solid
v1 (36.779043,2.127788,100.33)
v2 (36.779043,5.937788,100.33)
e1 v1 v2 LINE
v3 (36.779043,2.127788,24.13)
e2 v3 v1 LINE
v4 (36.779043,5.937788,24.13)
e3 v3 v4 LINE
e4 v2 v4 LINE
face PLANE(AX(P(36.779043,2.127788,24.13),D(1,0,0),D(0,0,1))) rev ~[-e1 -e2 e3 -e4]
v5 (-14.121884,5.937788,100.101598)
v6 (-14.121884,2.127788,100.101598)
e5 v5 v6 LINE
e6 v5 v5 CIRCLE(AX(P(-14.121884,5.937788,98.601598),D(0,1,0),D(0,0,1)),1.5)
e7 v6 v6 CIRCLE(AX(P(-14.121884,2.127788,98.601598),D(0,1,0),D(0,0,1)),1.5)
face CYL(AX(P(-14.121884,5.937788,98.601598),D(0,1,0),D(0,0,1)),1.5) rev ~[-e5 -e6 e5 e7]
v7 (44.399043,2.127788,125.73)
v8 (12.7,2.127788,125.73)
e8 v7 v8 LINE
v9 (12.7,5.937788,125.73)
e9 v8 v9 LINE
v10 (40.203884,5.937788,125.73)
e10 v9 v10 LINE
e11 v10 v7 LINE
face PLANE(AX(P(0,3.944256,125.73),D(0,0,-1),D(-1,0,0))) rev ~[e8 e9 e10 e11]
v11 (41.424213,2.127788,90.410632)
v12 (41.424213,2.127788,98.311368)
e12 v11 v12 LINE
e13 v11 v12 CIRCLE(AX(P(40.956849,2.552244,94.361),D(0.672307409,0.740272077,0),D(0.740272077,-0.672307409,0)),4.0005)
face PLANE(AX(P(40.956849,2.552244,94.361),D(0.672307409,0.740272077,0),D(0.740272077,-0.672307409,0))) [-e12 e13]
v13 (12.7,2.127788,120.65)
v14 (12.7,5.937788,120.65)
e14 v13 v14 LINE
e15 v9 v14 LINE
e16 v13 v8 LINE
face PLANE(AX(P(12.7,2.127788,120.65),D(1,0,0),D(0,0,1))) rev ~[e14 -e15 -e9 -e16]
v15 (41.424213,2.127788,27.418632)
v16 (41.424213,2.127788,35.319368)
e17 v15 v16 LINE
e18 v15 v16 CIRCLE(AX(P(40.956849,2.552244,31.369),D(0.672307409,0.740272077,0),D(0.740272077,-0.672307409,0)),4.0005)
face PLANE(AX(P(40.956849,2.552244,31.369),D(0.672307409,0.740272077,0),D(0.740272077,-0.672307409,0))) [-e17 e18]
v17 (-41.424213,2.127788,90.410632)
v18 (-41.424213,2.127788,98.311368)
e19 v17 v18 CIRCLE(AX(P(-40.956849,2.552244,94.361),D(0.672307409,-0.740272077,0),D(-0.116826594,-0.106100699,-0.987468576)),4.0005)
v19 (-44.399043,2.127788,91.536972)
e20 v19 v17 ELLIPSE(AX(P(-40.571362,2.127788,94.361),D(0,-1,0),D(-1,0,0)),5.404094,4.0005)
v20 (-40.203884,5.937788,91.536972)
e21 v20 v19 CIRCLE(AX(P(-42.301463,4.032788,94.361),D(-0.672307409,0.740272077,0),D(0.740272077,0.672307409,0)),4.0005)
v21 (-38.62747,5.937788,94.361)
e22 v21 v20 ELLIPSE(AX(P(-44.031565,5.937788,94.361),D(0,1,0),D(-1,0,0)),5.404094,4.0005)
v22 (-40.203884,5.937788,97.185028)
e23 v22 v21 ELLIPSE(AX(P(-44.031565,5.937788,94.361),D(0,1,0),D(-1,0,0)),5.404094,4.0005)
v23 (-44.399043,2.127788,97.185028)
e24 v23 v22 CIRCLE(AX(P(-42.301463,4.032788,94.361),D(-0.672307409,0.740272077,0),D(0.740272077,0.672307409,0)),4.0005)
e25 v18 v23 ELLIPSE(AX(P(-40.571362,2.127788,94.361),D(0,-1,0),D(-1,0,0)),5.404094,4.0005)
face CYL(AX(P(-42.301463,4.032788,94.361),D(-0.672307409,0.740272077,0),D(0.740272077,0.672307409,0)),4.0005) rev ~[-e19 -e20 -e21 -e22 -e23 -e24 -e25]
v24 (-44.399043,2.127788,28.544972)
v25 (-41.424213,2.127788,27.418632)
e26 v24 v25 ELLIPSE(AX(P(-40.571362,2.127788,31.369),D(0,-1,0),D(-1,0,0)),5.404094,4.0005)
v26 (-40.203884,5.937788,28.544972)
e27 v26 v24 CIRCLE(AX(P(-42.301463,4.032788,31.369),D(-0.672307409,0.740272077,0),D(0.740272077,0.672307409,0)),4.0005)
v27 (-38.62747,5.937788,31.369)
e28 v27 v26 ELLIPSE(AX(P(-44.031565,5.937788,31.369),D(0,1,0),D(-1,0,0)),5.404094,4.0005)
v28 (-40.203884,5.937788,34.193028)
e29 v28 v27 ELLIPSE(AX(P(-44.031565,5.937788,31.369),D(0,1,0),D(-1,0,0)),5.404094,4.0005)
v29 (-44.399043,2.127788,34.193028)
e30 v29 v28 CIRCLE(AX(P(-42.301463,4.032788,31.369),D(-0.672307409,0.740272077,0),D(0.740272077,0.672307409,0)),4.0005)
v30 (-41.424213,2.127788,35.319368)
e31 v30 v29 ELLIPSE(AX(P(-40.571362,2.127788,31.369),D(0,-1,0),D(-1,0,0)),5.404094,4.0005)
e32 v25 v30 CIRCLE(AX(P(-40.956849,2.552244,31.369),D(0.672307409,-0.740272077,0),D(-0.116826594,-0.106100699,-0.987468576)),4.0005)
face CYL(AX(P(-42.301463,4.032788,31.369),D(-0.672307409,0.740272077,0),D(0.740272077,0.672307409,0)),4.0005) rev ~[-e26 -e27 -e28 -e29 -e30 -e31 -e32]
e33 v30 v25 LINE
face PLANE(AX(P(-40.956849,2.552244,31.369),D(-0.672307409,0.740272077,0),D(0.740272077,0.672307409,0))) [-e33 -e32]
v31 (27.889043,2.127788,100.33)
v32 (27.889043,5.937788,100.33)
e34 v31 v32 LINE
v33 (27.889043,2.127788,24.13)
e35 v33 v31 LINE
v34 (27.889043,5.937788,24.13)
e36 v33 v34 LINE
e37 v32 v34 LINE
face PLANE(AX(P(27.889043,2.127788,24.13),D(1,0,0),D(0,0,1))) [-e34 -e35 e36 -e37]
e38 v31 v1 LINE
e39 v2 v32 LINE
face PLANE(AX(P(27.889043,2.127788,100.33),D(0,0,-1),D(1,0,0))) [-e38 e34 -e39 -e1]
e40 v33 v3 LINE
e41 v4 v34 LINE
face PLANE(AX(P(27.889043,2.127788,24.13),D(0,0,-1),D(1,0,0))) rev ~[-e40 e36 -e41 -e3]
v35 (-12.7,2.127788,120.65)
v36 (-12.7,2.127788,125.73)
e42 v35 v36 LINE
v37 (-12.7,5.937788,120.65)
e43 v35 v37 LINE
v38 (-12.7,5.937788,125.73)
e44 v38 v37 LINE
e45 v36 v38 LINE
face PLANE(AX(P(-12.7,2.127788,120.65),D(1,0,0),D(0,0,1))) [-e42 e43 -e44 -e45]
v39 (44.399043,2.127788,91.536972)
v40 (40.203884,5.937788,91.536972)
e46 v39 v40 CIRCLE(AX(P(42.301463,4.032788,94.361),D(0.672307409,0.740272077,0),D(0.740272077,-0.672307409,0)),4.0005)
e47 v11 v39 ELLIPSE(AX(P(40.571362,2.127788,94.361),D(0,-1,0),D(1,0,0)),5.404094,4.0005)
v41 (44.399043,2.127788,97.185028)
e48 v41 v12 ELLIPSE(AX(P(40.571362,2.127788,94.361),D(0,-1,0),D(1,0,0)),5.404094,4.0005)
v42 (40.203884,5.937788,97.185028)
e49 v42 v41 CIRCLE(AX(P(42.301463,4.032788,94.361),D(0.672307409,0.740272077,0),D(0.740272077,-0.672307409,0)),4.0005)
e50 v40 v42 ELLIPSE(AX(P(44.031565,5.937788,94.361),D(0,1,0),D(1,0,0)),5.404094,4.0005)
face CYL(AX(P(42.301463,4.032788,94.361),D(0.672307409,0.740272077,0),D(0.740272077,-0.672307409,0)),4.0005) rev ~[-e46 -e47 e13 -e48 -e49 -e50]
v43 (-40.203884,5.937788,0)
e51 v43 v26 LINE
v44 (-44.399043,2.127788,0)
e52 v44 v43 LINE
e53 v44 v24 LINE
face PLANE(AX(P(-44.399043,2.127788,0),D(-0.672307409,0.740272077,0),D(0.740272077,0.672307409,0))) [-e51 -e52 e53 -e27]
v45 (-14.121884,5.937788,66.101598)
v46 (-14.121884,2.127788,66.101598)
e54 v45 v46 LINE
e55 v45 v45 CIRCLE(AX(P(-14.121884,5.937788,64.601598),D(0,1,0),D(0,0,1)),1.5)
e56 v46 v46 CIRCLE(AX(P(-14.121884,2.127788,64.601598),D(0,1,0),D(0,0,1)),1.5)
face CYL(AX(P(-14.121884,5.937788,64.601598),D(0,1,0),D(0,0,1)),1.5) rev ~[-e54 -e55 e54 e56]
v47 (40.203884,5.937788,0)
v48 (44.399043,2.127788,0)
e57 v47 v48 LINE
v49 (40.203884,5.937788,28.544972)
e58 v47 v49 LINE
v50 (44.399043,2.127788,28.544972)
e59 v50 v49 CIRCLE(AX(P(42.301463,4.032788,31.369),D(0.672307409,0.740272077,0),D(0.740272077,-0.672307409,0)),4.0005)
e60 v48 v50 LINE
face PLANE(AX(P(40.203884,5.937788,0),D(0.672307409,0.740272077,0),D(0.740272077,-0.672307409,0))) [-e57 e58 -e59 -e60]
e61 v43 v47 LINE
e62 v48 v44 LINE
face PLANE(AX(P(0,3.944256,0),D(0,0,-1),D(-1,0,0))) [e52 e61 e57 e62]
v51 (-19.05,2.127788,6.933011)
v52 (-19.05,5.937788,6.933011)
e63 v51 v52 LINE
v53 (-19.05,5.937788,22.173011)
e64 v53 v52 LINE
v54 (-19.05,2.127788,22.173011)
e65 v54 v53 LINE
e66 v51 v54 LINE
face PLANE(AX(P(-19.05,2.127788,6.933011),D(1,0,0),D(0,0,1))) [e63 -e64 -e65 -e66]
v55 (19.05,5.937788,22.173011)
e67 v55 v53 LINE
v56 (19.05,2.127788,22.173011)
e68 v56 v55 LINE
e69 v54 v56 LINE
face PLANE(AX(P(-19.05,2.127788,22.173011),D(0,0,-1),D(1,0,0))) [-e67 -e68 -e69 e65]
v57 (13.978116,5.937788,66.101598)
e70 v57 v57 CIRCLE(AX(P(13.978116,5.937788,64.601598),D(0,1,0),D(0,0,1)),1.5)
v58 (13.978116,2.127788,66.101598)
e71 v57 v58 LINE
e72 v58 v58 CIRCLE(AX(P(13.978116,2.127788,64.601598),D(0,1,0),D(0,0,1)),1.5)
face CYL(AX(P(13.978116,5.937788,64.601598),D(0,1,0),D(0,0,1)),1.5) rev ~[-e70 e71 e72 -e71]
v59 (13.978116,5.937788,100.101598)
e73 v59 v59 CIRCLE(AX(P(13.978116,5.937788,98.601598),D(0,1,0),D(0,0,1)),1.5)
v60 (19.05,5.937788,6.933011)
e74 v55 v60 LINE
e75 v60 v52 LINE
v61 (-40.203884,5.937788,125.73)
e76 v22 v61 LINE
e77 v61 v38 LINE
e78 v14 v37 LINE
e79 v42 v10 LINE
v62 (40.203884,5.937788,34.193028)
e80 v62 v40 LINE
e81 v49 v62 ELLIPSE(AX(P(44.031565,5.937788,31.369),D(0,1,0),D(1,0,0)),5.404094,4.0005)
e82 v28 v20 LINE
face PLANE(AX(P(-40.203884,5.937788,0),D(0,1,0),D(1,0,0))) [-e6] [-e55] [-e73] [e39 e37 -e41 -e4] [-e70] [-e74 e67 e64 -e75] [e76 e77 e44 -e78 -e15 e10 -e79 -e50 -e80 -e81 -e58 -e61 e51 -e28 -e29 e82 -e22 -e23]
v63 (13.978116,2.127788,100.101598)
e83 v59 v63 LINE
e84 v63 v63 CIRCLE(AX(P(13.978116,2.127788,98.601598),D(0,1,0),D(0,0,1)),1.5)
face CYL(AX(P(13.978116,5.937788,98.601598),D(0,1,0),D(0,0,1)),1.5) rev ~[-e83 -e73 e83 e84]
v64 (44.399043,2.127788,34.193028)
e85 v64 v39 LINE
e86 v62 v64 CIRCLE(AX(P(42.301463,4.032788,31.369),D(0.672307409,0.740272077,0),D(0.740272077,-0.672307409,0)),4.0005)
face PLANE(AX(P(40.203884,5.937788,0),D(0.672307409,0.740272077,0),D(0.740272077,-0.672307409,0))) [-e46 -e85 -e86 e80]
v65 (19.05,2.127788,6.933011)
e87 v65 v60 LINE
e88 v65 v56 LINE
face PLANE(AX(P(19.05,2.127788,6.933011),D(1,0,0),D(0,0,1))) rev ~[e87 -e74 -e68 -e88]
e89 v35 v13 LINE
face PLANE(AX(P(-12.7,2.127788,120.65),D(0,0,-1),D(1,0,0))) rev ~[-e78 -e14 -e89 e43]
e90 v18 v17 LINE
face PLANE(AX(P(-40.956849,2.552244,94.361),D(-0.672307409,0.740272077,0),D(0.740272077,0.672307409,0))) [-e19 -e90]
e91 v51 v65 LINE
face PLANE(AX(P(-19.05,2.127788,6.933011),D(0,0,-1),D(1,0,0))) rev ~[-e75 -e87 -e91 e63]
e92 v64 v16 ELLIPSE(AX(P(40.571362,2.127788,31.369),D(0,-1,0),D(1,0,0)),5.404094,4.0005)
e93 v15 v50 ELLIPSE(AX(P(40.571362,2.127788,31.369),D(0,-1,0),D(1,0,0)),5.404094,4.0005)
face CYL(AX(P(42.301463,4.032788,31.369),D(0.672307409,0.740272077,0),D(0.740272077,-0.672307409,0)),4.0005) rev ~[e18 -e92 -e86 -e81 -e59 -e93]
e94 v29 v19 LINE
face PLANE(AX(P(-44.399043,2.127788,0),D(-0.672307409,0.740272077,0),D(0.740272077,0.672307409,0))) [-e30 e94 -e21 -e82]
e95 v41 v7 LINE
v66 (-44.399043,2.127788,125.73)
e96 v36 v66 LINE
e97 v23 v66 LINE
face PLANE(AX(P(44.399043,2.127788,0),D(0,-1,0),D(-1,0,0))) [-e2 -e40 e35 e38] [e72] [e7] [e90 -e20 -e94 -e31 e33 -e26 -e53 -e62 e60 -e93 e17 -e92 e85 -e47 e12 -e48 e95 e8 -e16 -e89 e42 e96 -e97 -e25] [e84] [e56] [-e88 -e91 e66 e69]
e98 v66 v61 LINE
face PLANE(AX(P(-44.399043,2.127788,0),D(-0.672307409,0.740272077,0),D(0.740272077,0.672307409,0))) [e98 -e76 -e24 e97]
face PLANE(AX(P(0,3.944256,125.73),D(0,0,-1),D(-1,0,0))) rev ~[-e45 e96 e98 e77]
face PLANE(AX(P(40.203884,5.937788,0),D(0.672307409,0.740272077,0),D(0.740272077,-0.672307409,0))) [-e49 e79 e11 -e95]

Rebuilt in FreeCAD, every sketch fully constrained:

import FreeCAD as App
import Part
import Sketcher
Q = App.Units.Quantity


def add_polygon(sketch, points):
    """Adds a closed chain of lines whose ends are joined by coincident constraints."""
    first, n = sketch.GeometryCount, len(points)
    for a, b in zip(points, points[1:] + points[:1]):
        sketch.addGeometry(Part.LineSegment(App.Vector(*a, 0), App.Vector(*b, 0)), False)
    for i in range(n):
        sketch.addConstraint(Sketcher.Constraint("Coincident", first + i, 2, first + (i + 1) % n, 1))

doc = App.newDocument("Part")
body = doc.addObject("PartDesign::Body", "Body")

# Sketch on XY plane
sketch1 = body.newObject("Sketcher::SketchObject", "Sketch")
sketch1.AttachmentSupport = (doc.getObject("XY_Plane"), [""])
sketch1.MapMode = "FlatFace"
add_polygon(sketch1, [(40, 6), (-40, 6), (-44, 2), (44, 2)])  # lines 0-3
sketch1.addConstraint(Sketcher.Constraint("Horizontal", 0))
sketch1.addConstraint(Sketcher.Constraint("Horizontal", 2))
sketch1.addConstraint(Sketcher.Constraint("Equal", 1, 3))
sketch1.addConstraint(Sketcher.Constraint("DistanceY", 1, 2, 0, 2, Q("0.15 in")))
sketch1.addConstraint(Sketcher.Constraint("Distance", 1, 5.66705))
sketch1.addConstraint(Sketcher.Constraint("DistanceX", 0, 2, 0, 1, 80.407768))
sketch1.addConstraint(Sketcher.Constraint("DistanceY", -1, 1, 0, 2, 5.937788))
sketch1.addConstraint(Sketcher.Constraint("DistanceX", 0, 2, -1, 1, 40.203884))
pad1 = body.newObject("PartDesign::Pad", "Pad")
pad1.Profile = sketch1
pad1.Length = Q("4.95 in")

# Sketch on XZ plane
sketch2 = body.newObject("Sketcher::SketchObject", "Sketch001")
sketch2.AttachmentSupport = (doc.getObject("XZ_Plane"), [""])
sketch2.MapMode = "FlatFace"
sketch2.AttachmentOffset = App.Placement(App.Vector(0, 0, -2.127788), App.Rotation())
add_polygon(sketch2, [(-13, 126), (-13, 121), (13, 121), (13, 126)])  # lines 0-3
sketch2.addConstraint(Sketcher.Constraint("Vertical", 0))
sketch2.addConstraint(Sketcher.Constraint("Horizontal", 1))
sketch2.addConstraint(Sketcher.Constraint("Vertical", 2))
sketch2.addConstraint(Sketcher.Constraint("Horizontal", 3))
sketch2.addConstraint(Sketcher.Constraint("DistanceX", 1, 1, 1, 2, Q("1 in")))
sketch2.addConstraint(Sketcher.Constraint("DistanceY", 0, 2, 0, 1, Q("0.2 in")))
sketch2.addConstraint(Sketcher.Constraint("DistanceX", 0, 2, -1, 1, Q("0.5 in")))
sketch2.addConstraint(Sketcher.Constraint("DistanceY", -1, 1, 0, 2, Q("4.75 in")))
pocket1 = body.newObject("PartDesign::Pocket", "Pocket")
pocket1.Profile = sketch2
pocket1.Type = "ThroughAll"

# Sketch on XZ plane
sketch3 = body.newObject("Sketcher::SketchObject", "Sketch002")
sketch3.AttachmentSupport = (doc.getObject("XZ_Plane"), [""])
sketch3.MapMode = "FlatFace"
sketch3.AttachmentOffset = App.Placement(App.Vector(0, 0, -2.127788), App.Rotation())
add_polygon(sketch3, [(28, 100), (28, 24), (37, 24), (37, 100)])  # lines 0-3
sketch3.addConstraint(Sketcher.Constraint("Vertical", 0))
sketch3.addConstraint(Sketcher.Constraint("Horizontal", 1))
sketch3.addConstraint(Sketcher.Constraint("Vertical", 2))
sketch3.addConstraint(Sketcher.Constraint("Horizontal", 3))
sketch3.addConstraint(Sketcher.Constraint("DistanceY", 0, 2, 0, 1, Q("3 in")))
sketch3.addConstraint(Sketcher.Constraint("DistanceX", 1, 1, 1, 2, Q("0.35 in")))
sketch3.addConstraint(Sketcher.Constraint("DistanceY", -1, 1, 0, 2, Q("0.95 in")))
sketch3.addConstraint(Sketcher.Constraint("DistanceX", -1, 1, 0, 2, 27.889043))
pocket2 = body.newObject("PartDesign::Pocket", "Pocket001")
pocket2.Profile = sketch3
pocket2.Type = "ThroughAll"

# Sketch on XZ plane
sketch4 = body.newObject("Sketcher::SketchObject", "Sketch003")
sketch4.AttachmentSupport = (doc.getObject("XZ_Plane"), [""])
sketch4.MapMode = "FlatFace"
sketch4.AttachmentOffset = App.Placement(App.Vector(0, 0, -2.127788), App.Rotation())
add_polygon(sketch4, [(-19, 22), (-19, 7), (19, 7), (19, 22)])  # lines 0-3
sketch4.addConstraint(Sketcher.Constraint("Vertical", 0))
sketch4.addConstraint(Sketcher.Constraint("Horizontal", 1))
sketch4.addConstraint(Sketcher.Constraint("Vertical", 2))
sketch4.addConstraint(Sketcher.Constraint("Horizontal", 3))
sketch4.addConstraint(Sketcher.Constraint("DistanceX", 1, 1, 1, 2, Q("1.5 in")))
sketch4.addConstraint(Sketcher.Constraint("DistanceY", 0, 2, 0, 1, Q("0.6 in")))
sketch4.addConstraint(Sketcher.Constraint("DistanceX", 0, 2, -1, 1, Q("0.75 in")))
sketch4.addConstraint(Sketcher.Constraint("DistanceY", -1, 1, 0, 2, 6.933011))
pocket3 = body.newObject("PartDesign::Pocket", "Pocket002")
pocket3.Profile = sketch4
pocket3.Type = "ThroughAll"

# Sketch on an angled plane
sketch5 = body.newObject("Sketcher::SketchObject", "Sketch004")
sketch5.Placement = App.Placement(App.Vector(21.127225, 23.263011, 0), App.Rotation(App.Vector(0.740272077, -0.672307409, 0), App.Vector(0, 0, -1), App.Vector(0.672307409, 0.740272077, 0), "ZXY"))
sketch5.addGeometry(Part.Circle(App.Vector(28.6, -94.4, 0), App.Vector(0, 0, 1), 4), False)
sketch5.addGeometry(Part.Circle(App.Vector(28.6, -31.4, 0), App.Vector(0, 0, 1), 4), False)
sketch5.addConstraint(Sketcher.Constraint("Equal", 0, 1))
sketch5.addConstraint(Sketcher.Constraint("Vertical", 0, 3, 1, 3))
sketch5.addConstraint(Sketcher.Constraint("Diameter", 0, Q("0.315 in")))
sketch5.addConstraint(Sketcher.Constraint("DistanceY", 0, 3, 1, 3, Q("2.48 in")))
sketch5.addConstraint(Sketcher.Constraint("DistanceY", 0, 3, -1, 1, Q("3.715 in")))
sketch5.addConstraint(Sketcher.Constraint("DistanceX", -1, 1, 0, 3, 28.603319))
pocket4 = body.newObject("PartDesign::Pocket", "Pocket003")
pocket4.Profile = sketch5
pocket4.Length = 2

# Sketch on an angled plane
sketch6 = body.newObject("Sketcher::SketchObject", "Sketch005")
sketch6.Placement = App.Placement(App.Vector(-21.127225, 23.263011, 0), App.Rotation(App.Vector(0.740272077, 0.672307409, 0), App.Vector(0, 0, -1), App.Vector(-0.672307409, 0.740272077, 0), "ZXY"))
sketch6.addGeometry(Part.Circle(App.Vector(-28.6, -31.4, 0), App.Vector(0, 0, 1), 4), False)
sketch6.addGeometry(Part.Circle(App.Vector(-28.6, -94.4, 0), App.Vector(0, 0, 1), 4), False)
sketch6.addConstraint(Sketcher.Constraint("Equal", 0, 1))
sketch6.addConstraint(Sketcher.Constraint("Vertical", 0, 3, 1, 3))
sketch6.addConstraint(Sketcher.Constraint("Diameter", 0, Q("0.315 in")))
sketch6.addConstraint(Sketcher.Constraint("DistanceY", 1, 3, 0, 3, Q("2.48 in")))
sketch6.addConstraint(Sketcher.Constraint("DistanceY", 0, 3, -1, 1, Q("1.235 in")))
sketch6.addConstraint(Sketcher.Constraint("DistanceX", 0, 3, -1, 1, 28.603319))
pocket5 = body.newObject("PartDesign::Pocket", "Pocket004")
pocket5.Profile = sketch6
pocket5.Length = 2

# Sketch on XZ plane
sketch7 = body.newObject("Sketcher::SketchObject", "Sketch006")
sketch7.AttachmentSupport = (doc.getObject("XZ_Plane"), [""])
sketch7.MapMode = "FlatFace"
sketch7.AttachmentOffset = App.Placement(App.Vector(0, 0, -5.937788), App.Rotation())
sketch7.addGeometry(Part.Circle(App.Vector(14, 98.6, 0), App.Vector(0, 0, 1), 1.5), False)
sketch7.addGeometry(Part.Circle(App.Vector(-14.1, 98.6, 0), App.Vector(0, 0, 1), 1.5), False)
sketch7.addGeometry(Part.Circle(App.Vector(-14.1, 64.6, 0), App.Vector(0, 0, 1), 1.5), False)
sketch7.addGeometry(Part.Circle(App.Vector(14, 64.6, 0), App.Vector(0, 0, 1), 1.5), False)
sketch7.addConstraint(Sketcher.Constraint("Equal", 0, 1))
sketch7.addConstraint(Sketcher.Constraint("Equal", 1, 2))
sketch7.addConstraint(Sketcher.Constraint("Equal", 2, 3))
sketch7.addConstraint(Sketcher.Constraint("Horizontal", 0, 3, 1, 3))
sketch7.addConstraint(Sketcher.Constraint("Horizontal", 2, 3, 3, 3))
sketch7.addConstraint(Sketcher.Constraint("Vertical", 1, 3, 2, 3))
sketch7.addConstraint(Sketcher.Constraint("Vertical", 0, 3, 3, 3))
sketch7.addConstraint(Sketcher.Constraint("Diameter", 0, 3.0))
sketch7.addConstraint(Sketcher.Constraint("DistanceX", 1, 3, 0, 3, 28.1))
sketch7.addConstraint(Sketcher.Constraint("DistanceY", 2, 3, 1, 3, 34.0))
sketch7.addConstraint(Sketcher.Constraint("DistanceX", -1, 1, 0, 3, 13.978116))
sketch7.addConstraint(Sketcher.Constraint("DistanceY", -1, 1, 0, 3, 98.601598))
pocket6 = body.newObject("PartDesign::Pocket", "Pocket005")
pocket6.Profile = sketch7
pocket6.Type = "ThroughAll"
pocket6.Reversed = True

doc.recompute()
